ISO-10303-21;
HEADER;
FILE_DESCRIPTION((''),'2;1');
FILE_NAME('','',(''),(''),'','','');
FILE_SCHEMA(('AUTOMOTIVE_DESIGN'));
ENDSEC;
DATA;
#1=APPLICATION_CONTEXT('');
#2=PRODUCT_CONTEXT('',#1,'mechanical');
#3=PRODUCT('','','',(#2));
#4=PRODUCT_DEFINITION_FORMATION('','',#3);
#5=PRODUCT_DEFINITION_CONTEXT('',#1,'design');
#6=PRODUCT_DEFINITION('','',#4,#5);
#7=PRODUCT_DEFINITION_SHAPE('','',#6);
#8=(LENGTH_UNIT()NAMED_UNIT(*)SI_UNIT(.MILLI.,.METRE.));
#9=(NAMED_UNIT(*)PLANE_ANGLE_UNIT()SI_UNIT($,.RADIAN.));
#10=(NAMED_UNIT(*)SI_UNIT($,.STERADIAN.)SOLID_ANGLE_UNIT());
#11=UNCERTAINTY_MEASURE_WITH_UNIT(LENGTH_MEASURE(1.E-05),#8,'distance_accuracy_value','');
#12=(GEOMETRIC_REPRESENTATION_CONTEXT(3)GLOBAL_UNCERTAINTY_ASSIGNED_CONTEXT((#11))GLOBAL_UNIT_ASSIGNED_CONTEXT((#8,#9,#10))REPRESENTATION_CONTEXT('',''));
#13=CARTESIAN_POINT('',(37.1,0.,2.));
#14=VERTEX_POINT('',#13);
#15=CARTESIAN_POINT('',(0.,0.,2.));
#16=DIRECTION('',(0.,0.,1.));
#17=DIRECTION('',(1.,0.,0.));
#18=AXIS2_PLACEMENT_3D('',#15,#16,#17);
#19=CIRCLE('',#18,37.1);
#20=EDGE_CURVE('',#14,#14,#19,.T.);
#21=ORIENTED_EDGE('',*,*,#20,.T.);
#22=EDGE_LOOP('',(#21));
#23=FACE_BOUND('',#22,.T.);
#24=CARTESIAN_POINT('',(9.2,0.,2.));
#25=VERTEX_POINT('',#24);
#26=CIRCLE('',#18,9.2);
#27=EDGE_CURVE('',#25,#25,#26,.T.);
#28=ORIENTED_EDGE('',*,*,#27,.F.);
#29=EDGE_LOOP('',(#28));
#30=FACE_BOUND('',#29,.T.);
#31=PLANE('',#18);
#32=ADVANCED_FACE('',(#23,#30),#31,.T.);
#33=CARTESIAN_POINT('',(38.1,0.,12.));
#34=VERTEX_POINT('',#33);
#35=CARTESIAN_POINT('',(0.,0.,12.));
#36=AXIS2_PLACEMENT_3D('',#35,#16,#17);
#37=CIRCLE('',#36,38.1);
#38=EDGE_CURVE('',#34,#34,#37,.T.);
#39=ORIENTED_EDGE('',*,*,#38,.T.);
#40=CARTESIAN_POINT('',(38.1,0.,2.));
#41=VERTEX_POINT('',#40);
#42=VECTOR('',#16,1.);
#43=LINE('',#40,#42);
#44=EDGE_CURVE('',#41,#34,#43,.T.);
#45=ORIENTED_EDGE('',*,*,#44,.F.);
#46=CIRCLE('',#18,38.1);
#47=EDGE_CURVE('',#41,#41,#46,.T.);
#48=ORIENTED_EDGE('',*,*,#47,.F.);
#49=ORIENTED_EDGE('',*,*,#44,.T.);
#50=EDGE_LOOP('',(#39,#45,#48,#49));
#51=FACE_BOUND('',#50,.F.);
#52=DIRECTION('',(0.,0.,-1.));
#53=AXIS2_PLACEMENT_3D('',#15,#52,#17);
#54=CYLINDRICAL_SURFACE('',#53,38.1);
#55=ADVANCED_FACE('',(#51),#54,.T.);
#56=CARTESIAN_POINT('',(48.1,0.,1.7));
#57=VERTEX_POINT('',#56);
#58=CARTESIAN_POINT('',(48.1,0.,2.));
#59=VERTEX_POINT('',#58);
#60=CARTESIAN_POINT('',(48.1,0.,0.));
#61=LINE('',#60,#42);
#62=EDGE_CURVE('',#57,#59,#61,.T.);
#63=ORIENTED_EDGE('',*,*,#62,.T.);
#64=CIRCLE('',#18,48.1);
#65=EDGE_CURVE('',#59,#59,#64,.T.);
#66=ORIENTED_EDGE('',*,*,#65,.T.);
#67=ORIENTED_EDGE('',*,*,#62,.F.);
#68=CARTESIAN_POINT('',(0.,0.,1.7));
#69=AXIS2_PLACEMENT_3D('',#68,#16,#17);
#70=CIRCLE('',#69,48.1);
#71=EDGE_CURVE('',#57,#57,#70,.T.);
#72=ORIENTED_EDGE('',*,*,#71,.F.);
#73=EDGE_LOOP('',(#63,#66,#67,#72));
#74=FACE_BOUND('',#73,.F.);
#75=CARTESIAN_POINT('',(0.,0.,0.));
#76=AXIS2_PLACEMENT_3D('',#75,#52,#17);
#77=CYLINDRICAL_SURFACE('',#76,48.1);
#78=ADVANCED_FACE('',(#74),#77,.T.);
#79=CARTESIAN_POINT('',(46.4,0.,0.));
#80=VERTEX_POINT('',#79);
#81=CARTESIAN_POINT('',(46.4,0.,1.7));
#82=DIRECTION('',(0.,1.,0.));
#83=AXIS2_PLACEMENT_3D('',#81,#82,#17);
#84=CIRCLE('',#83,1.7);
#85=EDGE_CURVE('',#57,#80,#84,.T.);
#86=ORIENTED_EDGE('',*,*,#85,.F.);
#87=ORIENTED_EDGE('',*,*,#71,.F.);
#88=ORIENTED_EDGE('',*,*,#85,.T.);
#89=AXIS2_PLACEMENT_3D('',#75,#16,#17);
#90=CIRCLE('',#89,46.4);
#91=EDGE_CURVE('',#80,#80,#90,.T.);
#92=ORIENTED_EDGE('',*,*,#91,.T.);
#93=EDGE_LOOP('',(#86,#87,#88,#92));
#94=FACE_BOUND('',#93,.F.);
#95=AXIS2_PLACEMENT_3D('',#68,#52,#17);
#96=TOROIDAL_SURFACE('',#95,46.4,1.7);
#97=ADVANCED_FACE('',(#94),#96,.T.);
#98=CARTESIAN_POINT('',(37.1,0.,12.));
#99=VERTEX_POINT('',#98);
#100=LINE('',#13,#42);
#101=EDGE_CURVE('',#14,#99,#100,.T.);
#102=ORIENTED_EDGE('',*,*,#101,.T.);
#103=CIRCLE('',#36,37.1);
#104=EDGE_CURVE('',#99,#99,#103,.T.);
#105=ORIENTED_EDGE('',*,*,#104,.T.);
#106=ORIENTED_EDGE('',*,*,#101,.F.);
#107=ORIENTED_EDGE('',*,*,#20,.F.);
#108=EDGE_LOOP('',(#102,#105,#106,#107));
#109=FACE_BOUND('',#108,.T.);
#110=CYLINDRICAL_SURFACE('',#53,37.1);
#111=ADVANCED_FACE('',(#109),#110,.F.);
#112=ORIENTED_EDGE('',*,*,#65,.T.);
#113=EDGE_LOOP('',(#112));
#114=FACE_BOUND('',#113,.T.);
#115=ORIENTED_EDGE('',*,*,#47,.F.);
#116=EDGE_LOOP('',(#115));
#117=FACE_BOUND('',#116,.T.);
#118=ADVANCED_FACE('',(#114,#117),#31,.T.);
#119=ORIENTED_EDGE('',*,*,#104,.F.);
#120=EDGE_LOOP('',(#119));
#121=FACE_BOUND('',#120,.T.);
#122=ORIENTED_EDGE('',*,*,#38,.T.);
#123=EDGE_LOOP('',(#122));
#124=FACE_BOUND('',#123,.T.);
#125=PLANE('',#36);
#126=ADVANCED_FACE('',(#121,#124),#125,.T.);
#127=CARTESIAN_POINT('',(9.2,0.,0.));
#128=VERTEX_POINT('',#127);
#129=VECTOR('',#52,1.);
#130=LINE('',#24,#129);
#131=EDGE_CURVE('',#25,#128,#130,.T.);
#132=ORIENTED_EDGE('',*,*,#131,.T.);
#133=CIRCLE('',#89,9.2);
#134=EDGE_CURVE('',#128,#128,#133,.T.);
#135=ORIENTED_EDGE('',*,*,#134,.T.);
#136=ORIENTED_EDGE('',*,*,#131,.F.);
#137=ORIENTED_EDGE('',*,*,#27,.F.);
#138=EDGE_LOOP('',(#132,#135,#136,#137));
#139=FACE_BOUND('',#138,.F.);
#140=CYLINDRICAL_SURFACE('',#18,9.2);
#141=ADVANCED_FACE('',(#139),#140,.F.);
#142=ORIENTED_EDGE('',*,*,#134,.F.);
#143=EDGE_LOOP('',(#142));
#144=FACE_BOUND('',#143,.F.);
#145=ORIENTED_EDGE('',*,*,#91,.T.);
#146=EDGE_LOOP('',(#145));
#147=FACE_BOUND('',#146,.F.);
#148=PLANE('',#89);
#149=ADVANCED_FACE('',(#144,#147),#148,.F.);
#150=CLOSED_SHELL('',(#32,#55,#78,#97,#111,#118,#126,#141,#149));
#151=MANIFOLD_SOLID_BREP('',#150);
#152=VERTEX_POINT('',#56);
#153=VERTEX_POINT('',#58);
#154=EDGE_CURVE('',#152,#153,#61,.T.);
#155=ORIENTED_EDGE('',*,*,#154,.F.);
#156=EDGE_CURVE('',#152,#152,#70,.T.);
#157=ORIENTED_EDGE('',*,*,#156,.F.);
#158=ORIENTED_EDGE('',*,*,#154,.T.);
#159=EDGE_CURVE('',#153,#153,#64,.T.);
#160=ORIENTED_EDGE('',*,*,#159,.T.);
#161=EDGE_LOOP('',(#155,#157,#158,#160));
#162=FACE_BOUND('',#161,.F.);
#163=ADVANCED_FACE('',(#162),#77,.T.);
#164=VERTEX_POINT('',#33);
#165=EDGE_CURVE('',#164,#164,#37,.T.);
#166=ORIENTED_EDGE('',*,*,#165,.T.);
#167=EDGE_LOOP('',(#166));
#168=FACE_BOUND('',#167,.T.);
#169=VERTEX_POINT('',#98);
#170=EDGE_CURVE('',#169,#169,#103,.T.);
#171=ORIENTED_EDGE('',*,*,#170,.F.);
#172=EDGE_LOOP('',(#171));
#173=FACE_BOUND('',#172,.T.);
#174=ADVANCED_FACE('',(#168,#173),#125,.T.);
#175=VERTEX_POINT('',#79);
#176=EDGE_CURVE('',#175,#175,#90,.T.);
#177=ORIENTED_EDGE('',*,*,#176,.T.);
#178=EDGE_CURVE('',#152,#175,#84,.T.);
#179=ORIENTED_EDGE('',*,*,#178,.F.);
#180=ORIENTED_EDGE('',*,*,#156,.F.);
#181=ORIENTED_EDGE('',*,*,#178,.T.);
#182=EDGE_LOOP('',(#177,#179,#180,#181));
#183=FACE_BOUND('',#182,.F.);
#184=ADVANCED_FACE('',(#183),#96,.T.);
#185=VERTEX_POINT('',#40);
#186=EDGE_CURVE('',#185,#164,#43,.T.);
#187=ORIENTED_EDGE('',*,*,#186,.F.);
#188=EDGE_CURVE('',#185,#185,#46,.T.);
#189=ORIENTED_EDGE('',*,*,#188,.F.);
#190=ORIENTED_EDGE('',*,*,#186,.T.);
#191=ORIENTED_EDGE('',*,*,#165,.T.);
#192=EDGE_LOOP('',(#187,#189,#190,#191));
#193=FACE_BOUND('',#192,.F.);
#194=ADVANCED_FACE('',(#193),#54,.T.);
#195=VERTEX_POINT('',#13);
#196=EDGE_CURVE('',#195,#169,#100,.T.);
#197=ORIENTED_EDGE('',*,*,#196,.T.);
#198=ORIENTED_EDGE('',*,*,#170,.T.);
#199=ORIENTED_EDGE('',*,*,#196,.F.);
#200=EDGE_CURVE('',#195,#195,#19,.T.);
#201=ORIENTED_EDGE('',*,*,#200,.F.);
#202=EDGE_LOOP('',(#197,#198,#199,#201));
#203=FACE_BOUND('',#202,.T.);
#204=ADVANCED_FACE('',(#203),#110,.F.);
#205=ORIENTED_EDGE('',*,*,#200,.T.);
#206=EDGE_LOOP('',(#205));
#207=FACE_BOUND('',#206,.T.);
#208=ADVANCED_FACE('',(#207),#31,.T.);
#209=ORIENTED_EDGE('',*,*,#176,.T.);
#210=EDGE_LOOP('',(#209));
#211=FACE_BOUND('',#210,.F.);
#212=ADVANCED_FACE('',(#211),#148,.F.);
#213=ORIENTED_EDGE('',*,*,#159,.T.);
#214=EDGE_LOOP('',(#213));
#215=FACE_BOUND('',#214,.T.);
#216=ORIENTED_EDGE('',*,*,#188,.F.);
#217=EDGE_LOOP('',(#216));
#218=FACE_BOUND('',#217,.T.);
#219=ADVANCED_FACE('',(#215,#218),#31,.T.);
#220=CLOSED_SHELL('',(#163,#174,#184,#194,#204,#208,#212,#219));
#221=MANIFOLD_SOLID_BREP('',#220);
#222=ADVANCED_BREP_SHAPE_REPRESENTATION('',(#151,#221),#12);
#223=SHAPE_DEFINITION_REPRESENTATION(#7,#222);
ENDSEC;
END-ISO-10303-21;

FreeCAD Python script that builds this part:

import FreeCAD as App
import Part
import Sketcher

V = App.Vector


def edges_at(feature, points):
    """Names of the edges that pass closest to the given points."""
    edges = feature.Shape.Edges
    near = lambda p: min(range(len(edges)), key=lambda i: edges[i].distToShape(Part.Vertex(*p))[0])
    return sorted({f"Edge{near(p) + 1}" for p in points})

doc = App.newDocument("Part")
body = doc.addObject("PartDesign::Body", "Body")

# Sketch on XY plane
sketch1 = body.newObject("Sketcher::SketchObject", "Sketch")
sketch1.AttachmentSupport = (doc.getObject("XY_Plane"), [""])
sketch1.MapMode = "FlatFace"
sketch1.addGeometry(Part.Circle(V(0, 0, 0), V(0, 0, 1), 48), False)
sketch1.addConstraint(Sketcher.Constraint("Coincident", 0, 3, -1, 1))
sketch1.addConstraint(Sketcher.Constraint("Diameter", 0, 96.2))
pad1 = body.newObject("PartDesign::Pad", "Pad")
pad1.Profile = sketch1
pad1.Length = 2
doc.recompute()

fillet = body.newObject("PartDesign::Fillet", "Fillet")
fillet.Base = (pad1, edges_at(pad1, [(-48.1, 0, 0)]))
fillet.Radius = 1.7

# Sketch on XY plane
sketch2 = body.newObject("Sketcher::SketchObject", "Sketch001")
sketch2.AttachmentSupport = (doc.getObject("XY_Plane"), [""])
sketch2.MapMode = "FlatFace"
sketch2.AttachmentOffset = App.Placement(V(0, 0, 2), App.Rotation())
sketch2.addGeometry(Part.Circle(V(0, 0, 0), V(0, 0, 1), 38), False)
sketch2.addGeometry(Part.Circle(V(0, 0, 0), V(0, 0, 1), 37), False)
sketch2.addConstraint(Sketcher.Constraint("Coincident", 0, 3, -1, 1))
sketch2.addConstraint(Sketcher.Constraint("Coincident", 1, 3, -1, 1))
sketch2.addConstraint(Sketcher.Constraint("Diameter", 0, 76.2))
sketch2.addConstraint(Sketcher.Constraint("Diameter", 1, 74.2))
pad2 = body.newObject("PartDesign::Pad", "Pad001")
pad2.Profile = sketch2
pad2.Length = 10
body2 = doc.addObject("PartDesign::Body", "Body001")

# Sketch on XY plane
sketch3 = body2.newObject("Sketcher::SketchObject", "Sketch002")
sketch3.AttachmentSupport = (doc.getObject("XY_Plane001"), [""])
sketch3.MapMode = "FlatFace"
sketch3.addGeometry(Part.Circle(V(0, 0, 0), V(0, 0, 1), 48), False)
sketch3.addConstraint(Sketcher.Constraint("Coincident", 0, 3, -1, 1))
sketch3.addConstraint(Sketcher.Constraint("Diameter", 0, 96.2))
pad3 = body2.newObject("PartDesign::Pad", "Pad002")
pad3.Profile = sketch3
pad3.Length = 2
doc.recompute()

fillet2 = body2.newObject("PartDesign::Fillet", "Fillet001")
fillet2.Base = (pad3, edges_at(pad3, [(-48.1, 0, 0)]))
fillet2.Radius = 1.7

# Sketch on XY plane
sketch4 = body2.newObject("Sketcher::SketchObject", "Sketch003")
sketch4.AttachmentSupport = (doc.getObject("XY_Plane001"), [""])
sketch4.MapMode = "FlatFace"
sketch4.AttachmentOffset = App.Placement(V(0, 0, 2), App.Rotation())
sketch4.addGeometry(Part.Circle(V(0, 0, 0), V(0, 0, 1), 38), False)
sketch4.addGeometry(Part.Circle(V(0, 0, 0), V(0, 0, 1), 37), False)
sketch4.addConstraint(Sketcher.Constraint("Coincident", 0, 3, -1, 1))
sketch4.addConstraint(Sketcher.Constraint("Coincident", 1, 3, -1, 1))
sketch4.addConstraint(Sketcher.Constraint("Diameter", 0, 76.2))
sketch4.addConstraint(Sketcher.Constraint("Diameter", 1, 74.2))
pad4 = body2.newObject("PartDesign::Pad", "Pad003")
pad4.Profile = sketch4
pad4.Length = 10

# Sketch on XY plane
sketch5 = body2.newObject("Sketcher::SketchObject", "Sketch004")
sketch5.AttachmentSupport = (doc.getObject("XY_Plane001"), [""])
sketch5.MapMode = "FlatFace"
sketch5.AttachmentOffset = App.Placement(V(0, 0, 2), App.Rotation())
sketch5.addGeometry(Part.Circle(V(0, 0, 0), V(0, 0, 1), 9), False)
sketch5.addConstraint(Sketcher.Constraint("Coincident", 0, 3, -1, 1))
sketch5.addConstraint(Sketcher.Constraint("Diameter", 0, 18.4))
pocket1 = body2.newObject("PartDesign::Pocket", "Pocket")
pocket1.Profile = sketch5
pocket1.Type = "ThroughAll"

doc.recompute()
